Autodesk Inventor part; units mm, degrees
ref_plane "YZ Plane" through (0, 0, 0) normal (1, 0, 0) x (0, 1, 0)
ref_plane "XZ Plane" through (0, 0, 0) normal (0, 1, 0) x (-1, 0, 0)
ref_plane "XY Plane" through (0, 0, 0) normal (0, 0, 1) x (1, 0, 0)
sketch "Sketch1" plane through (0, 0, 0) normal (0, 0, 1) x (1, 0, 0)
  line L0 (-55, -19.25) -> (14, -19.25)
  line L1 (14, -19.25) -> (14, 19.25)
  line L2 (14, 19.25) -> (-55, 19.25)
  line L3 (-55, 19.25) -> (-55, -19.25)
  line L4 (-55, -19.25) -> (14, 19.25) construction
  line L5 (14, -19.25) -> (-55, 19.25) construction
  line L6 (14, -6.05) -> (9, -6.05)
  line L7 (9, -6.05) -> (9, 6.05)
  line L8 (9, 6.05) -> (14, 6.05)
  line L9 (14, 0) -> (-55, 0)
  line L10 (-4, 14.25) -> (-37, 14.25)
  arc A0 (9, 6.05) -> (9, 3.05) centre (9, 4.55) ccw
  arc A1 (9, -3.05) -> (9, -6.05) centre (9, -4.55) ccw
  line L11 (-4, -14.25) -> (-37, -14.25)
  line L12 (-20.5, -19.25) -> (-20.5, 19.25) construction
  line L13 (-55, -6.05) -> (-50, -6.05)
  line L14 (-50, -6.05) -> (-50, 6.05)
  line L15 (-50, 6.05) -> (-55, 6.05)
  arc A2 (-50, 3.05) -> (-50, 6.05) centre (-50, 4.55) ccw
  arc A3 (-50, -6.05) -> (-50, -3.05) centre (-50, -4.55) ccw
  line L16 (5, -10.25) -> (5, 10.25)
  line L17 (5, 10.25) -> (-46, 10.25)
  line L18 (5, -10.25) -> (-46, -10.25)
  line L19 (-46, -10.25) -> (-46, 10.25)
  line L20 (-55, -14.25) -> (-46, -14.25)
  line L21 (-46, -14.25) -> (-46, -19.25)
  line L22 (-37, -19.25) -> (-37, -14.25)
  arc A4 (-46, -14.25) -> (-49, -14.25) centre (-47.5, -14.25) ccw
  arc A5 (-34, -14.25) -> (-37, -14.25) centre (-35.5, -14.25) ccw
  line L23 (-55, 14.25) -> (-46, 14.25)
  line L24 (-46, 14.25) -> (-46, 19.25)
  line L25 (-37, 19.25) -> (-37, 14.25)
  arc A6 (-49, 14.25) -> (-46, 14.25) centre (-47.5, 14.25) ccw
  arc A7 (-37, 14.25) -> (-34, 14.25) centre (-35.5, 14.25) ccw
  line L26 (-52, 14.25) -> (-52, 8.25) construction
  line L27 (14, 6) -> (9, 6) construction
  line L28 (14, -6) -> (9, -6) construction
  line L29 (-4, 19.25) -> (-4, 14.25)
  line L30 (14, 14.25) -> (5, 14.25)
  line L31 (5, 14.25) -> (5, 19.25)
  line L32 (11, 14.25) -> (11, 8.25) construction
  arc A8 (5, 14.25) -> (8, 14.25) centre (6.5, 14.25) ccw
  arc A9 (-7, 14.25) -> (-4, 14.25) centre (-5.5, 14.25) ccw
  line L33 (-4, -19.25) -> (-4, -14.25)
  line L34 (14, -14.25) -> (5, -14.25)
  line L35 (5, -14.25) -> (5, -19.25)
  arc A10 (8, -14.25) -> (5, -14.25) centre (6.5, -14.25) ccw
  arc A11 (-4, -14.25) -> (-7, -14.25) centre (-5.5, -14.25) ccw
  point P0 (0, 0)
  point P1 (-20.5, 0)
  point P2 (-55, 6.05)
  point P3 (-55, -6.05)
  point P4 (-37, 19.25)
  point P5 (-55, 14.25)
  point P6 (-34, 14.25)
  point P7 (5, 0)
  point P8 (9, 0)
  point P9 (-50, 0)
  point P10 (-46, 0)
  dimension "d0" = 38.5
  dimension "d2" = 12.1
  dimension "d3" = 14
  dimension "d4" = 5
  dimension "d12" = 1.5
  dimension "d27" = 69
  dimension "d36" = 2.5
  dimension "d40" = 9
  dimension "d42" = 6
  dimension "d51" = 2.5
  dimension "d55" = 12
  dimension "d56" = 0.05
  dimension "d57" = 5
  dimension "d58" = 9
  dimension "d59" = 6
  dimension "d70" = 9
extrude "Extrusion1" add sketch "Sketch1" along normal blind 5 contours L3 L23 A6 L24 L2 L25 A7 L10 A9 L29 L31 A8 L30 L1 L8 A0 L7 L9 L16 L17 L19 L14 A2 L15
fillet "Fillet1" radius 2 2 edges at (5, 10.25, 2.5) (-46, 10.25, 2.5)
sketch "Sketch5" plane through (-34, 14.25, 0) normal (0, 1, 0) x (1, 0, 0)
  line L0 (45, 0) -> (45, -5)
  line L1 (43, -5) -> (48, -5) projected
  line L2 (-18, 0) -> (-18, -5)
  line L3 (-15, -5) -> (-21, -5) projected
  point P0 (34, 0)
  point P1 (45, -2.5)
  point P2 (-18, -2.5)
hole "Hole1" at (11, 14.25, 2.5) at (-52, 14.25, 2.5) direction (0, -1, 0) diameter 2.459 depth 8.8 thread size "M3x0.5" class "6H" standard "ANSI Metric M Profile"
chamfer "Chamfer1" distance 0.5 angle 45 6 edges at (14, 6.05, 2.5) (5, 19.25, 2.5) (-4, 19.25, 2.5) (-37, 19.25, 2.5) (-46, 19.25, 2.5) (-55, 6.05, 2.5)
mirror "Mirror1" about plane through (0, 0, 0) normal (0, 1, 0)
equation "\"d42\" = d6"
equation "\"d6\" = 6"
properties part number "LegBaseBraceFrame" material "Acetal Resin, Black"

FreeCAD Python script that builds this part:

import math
import FreeCAD as App
import Part
import Sketcher


def edges_at(feature, points):
    """Names of the edges that pass closest to the given points."""
    edges = feature.Shape.Edges
    near = lambda p: min(range(len(edges)), key=lambda i: edges[i].distToShape(Part.Vertex(*p))[0])
    return sorted({f"Edge{near(p) + 1}" for p in points})

doc = App.newDocument("Part")
body = doc.addObject("PartDesign::Body", "Body")

# Sketch on XY plane
sketch1 = doc.addObject("Sketcher::SketchObject", "Sketch")
body.addObject(sketch1)
sketch1.AttachmentSupport = (doc.XY_Plane, [""])
sketch1.MapMode = "FlatFace"
sketch1.addGeometry(Part.LineSegment(App.Vector(-55, 14.2, 0), App.Vector(-55, 6, 0)), False)
sketch1.addGeometry(Part.LineSegment(App.Vector(-55, 6, 0), App.Vector(-50, 6, 0)), False)
sketch1.addGeometry(Part.ArcOfCircle(Part.Circle(App.Vector(-50, 4.5, 0), App.Vector(0, 0, 1), 1.5), math.radians(-90), math.radians(90)), False)
sketch1.addGeometry(Part.LineSegment(App.Vector(-50, 3, 0), App.Vector(-50, 0, 0)), False)
sketch1.addGeometry(Part.LineSegment(App.Vector(-50, 0, 0), App.Vector(-46, 0, 0)), False)
sketch1.addGeometry(Part.LineSegment(App.Vector(-46, 0, 0), App.Vector(-46, 10.2, 0)), False)
sketch1.addGeometry(Part.LineSegment(App.Vector(-46, 10.2, 0), App.Vector(5, 10.2, 0)), False)
sketch1.addGeometry(Part.LineSegment(App.Vector(5, 10.2, 0), App.Vector(5, 0, 0)), False)
sketch1.addGeometry(Part.LineSegment(App.Vector(5, 0, 0), App.Vector(9, 0, 0)), False)
sketch1.addGeometry(Part.LineSegment(App.Vector(9, 0, 0), App.Vector(9, 3, 0)), False)
sketch1.addGeometry(Part.ArcOfCircle(Part.Circle(App.Vector(9, 4.5, 0), App.Vector(0, 0, 1), 1.5), math.radians(90), math.radians(270)), False)
sketch1.addGeometry(Part.LineSegment(App.Vector(9, 6, 0), App.Vector(14, 6, 0)), False)
sketch1.addGeometry(Part.LineSegment(App.Vector(14, 6, 0), App.Vector(14, 14.2, 0)), False)
sketch1.addGeometry(Part.LineSegment(App.Vector(14, 14.2, 0), App.Vector(8, 14.2, 0)), False)
sketch1.addGeometry(Part.ArcOfCircle(Part.Circle(App.Vector(6.5, 14.2, 0), App.Vector(0, 0, 1), 1.5), math.radians(180), math.radians(360)), False)
sketch1.addGeometry(Part.LineSegment(App.Vector(5, 14.2, 0), App.Vector(5, 19.2, 0)), False)
sketch1.addGeometry(Part.LineSegment(App.Vector(5, 19.2, 0), App.Vector(-4, 19.2, 0)), False)
sketch1.addGeometry(Part.LineSegment(App.Vector(-4, 19.2, 0), App.Vector(-4, 14.2, 0)), False)
sketch1.addGeometry(Part.ArcOfCircle(Part.Circle(App.Vector(-5.5, 14.2, 0), App.Vector(0, 0, 1), 1.5), math.radians(180), math.radians(360)), False)
sketch1.addGeometry(Part.LineSegment(App.Vector(-7, 14.2, 0), App.Vector(-34, 14.2, 0)), False)
sketch1.addGeometry(Part.ArcOfCircle(Part.Circle(App.Vector(-35.5, 14.2, 0), App.Vector(0, 0, 1), 1.5), math.radians(180), math.radians(360)), False)
sketch1.addGeometry(Part.LineSegment(App.Vector(-37, 14.2, 0), App.Vector(-37, 19.2, 0)), False)
sketch1.addGeometry(Part.LineSegment(App.Vector(-37, 19.2, 0), App.Vector(-46, 19.2, 0)), False)
sketch1.addGeometry(Part.LineSegment(App.Vector(-46, 19.2, 0), App.Vector(-46, 14.2, 0)), False)
sketch1.addGeometry(Part.ArcOfCircle(Part.Circle(App.Vector(-47.5, 14.2, 0), App.Vector(0, 0, 1), 1.5), math.radians(180), math.radians(360)), False)
sketch1.addGeometry(Part.LineSegment(App.Vector(-49, 14.2, 0), App.Vector(-55, 14.2, 0)), False)
sketch1.addConstraint(Sketcher.Constraint("Coincident", 0, 2, 1, 1))
sketch1.addConstraint(Sketcher.Constraint("Tangent", 1, 2, 2, 2))
sketch1.addConstraint(Sketcher.Constraint("Coincident", 2, 1, 3, 1))
sketch1.addConstraint(Sketcher.Constraint("Coincident", 3, 2, 4, 1))
sketch1.addConstraint(Sketcher.Constraint("Coincident", 4, 2, 5, 1))
sketch1.addConstraint(Sketcher.Constraint("Coincident", 5, 2, 6, 1))
sketch1.addConstraint(Sketcher.Constraint("Coincident", 6, 2, 7, 1))
sketch1.addConstraint(Sketcher.Constraint("Coincident", 7, 2, 8, 1))
sketch1.addConstraint(Sketcher.Constraint("Coincident", 8, 2, 9, 1))
sketch1.addConstraint(Sketcher.Constraint("Coincident", 9, 2, 10, 2))
sketch1.addConstraint(Sketcher.Constraint("Tangent", 10, 1, 11, 1))
sketch1.addConstraint(Sketcher.Constraint("Coincident", 11, 2, 12, 1))
sketch1.addConstraint(Sketcher.Constraint("Coincident", 12, 2, 13, 1))
sketch1.addConstraint(Sketcher.Constraint("Coincident", 13, 2, 14, 2))
sketch1.addConstraint(Sketcher.Constraint("Tangent", 14, 1, 15, 1))
sketch1.addConstraint(Sketcher.Constraint("Coincident", 15, 2, 16, 1))
sketch1.addConstraint(Sketcher.Constraint("Coincident", 16, 2, 17, 1))
sketch1.addConstraint(Sketcher.Constraint("Tangent", 17, 2, 18, 2))
sketch1.addConstraint(Sketcher.Constraint("Coincident", 18, 1, 19, 1))
sketch1.addConstraint(Sketcher.Constraint("Coincident", 19, 2, 20, 2))
sketch1.addConstraint(Sketcher.Constraint("Tangent", 20, 1, 21, 1))
sketch1.addConstraint(Sketcher.Constraint("Coincident", 21, 2, 22, 1))
sketch1.addConstraint(Sketcher.Constraint("Coincident", 22, 2, 23, 1))
sketch1.addConstraint(Sketcher.Constraint("Tangent", 23, 2, 24, 2))
sketch1.addConstraint(Sketcher.Constraint("Coincident", 24, 1, 25, 1))
sketch1.addConstraint(Sketcher.Constraint("Coincident", 25, 2, 0, 1))
sketch1.addConstraint(Sketcher.Constraint("Vertical", 0))
sketch1.addConstraint(Sketcher.Constraint("Horizontal", 1))
sketch1.addConstraint(Sketcher.Constraint("Vertical", 3))
sketch1.addConstraint(Sketcher.Constraint("Horizontal", 4))
sketch1.addConstraint(Sketcher.Constraint("Vertical", 5))
sketch1.addConstraint(Sketcher.Constraint("Horizontal", 6))
sketch1.addConstraint(Sketcher.Constraint("Vertical", 7))
sketch1.addConstraint(Sketcher.Constraint("Horizontal", 8))
sketch1.addConstraint(Sketcher.Constraint("Vertical", 9))
sketch1.addConstraint(Sketcher.Constraint("Horizontal", 11))
sketch1.addConstraint(Sketcher.Constraint("Vertical", 12))
sketch1.addConstraint(Sketcher.Constraint("Horizontal", 13))
sketch1.addConstraint(Sketcher.Constraint("Vertical", 15))
sketch1.addConstraint(Sketcher.Constraint("Horizontal", 16))
sketch1.addConstraint(Sketcher.Constraint("Vertical", 17))
sketch1.addConstraint(Sketcher.Constraint("Horizontal", 19))
sketch1.addConstraint(Sketcher.Constraint("Vertical", 21))
sketch1.addConstraint(Sketcher.Constraint("Horizontal", 22))
sketch1.addConstraint(Sketcher.Constraint("Vertical", 23))
sketch1.addConstraint(Sketcher.Constraint("Horizontal", 25))
sketch1.addConstraint(Sketcher.Constraint("Equal", 2, 10))
sketch1.addConstraint(Sketcher.Constraint("Equal", 10, 14))
sketch1.addConstraint(Sketcher.Constraint("Equal", 14, 18))
sketch1.addConstraint(Sketcher.Constraint("Equal", 18, 20))
sketch1.addConstraint(Sketcher.Constraint("Equal", 20, 24))
sketch1.addConstraint(Sketcher.Constraint("PointOnObject", 3, 2, -1))
sketch1.addConstraint(Sketcher.Constraint("PointOnObject", 7, 2, -1))
sketch1.addConstraint(Sketcher.Constraint("Horizontal", 2, 3, 10, 3))
sketch1.addConstraint(Sketcher.Constraint("Horizontal", 14, 3, 18, 3))
sketch1.addConstraint(Sketcher.Constraint("Horizontal", 18, 3, 20, 3))
sketch1.addConstraint(Sketcher.Constraint("Horizontal", 20, 3, 24, 3))
sketch1.addConstraint(Sketcher.Constraint("Horizontal", 24, 3, 12, 2))
sketch1.addConstraint(Sketcher.Constraint("Horizontal", 17, 2, 18, 1))
sketch1.addConstraint(Sketcher.Constraint("Horizontal", 16, 2, 21, 2))
sketch1.addConstraint(Sketcher.Constraint("Horizontal", 23, 2, 24, 1))
sketch1.addConstraint(Sketcher.Constraint("Vertical", 1, 2, 2, 1))
sketch1.addConstraint(Sketcher.Constraint("Vertical", 10, 3, 8, 2))
sketch1.addConstraint(Sketcher.Constraint("Vertical", 7, 2, 14, 1))
sketch1.addConstraint(Sketcher.Constraint("Vertical", 5, 2, 22, 2))
sketch1.addConstraint(Sketcher.Constraint("Equal", 4, 8))
sketch1.addConstraint(Sketcher.Constraint("Equal", 1, 11))
sketch1.addConstraint(Sketcher.Constraint("Equal", 16, 22))
sketch1.addConstraint(Sketcher.Constraint("Equal", 11, 15))
sketch1.addConstraint(Sketcher.Constraint("Radius", 2, 1.5))
sketch1.addConstraint(Sketcher.Constraint("DistanceX", 1, 1, 1, 2, 5.0))
sketch1.addConstraint(Sketcher.Constraint("DistanceX", 13, 2, 13, 1, 6.0))
sketch1.addConstraint(Sketcher.Constraint("DistanceX", 16, 2, 16, 1, 9.0))
sketch1.addConstraint(Sketcher.Constraint("DistanceX", -1, 1, 10, 3, 9.0))
sketch1.addConstraint(Sketcher.Constraint("DistanceY", 6, 2, 15, 2, 9.0))
sketch1.addConstraint(Sketcher.Constraint("DistanceX", 6, 1, 6, 2, 51.0))
sketch1.addConstraint(Sketcher.Constraint("DistanceY", 0, 2, 0, 1, 8.2))
sketch1.addConstraint(Sketcher.Constraint("DistanceY", 3, 2, 3, 1, 3.05))
pad1 = doc.addObject("PartDesign::Pad", "Pad")
body.addObject(pad1)
pad1.Profile = sketch1
pad1.Length = 5
doc.recompute()

fillet = doc.addObject("PartDesign::Fillet", "Fillet")
body.addObject(fillet)
fillet.Base = (pad1, edges_at(pad1, [(5, 10.25, 2.5), (-46, 10.25, 2.5)]))
fillet.Radius = 2

# Sketch on XZ plane
sketch2 = doc.addObject("Sketcher::SketchObject", "Sketch001")
body.addObject(sketch2)
sketch2.AttachmentSupport = (doc.XZ_Plane, [""])
sketch2.MapMode = "FlatFace"
sketch2.AttachmentOffset = App.Placement(App.Vector(0, 0, -14.25), App.Rotation())
sketch2.addGeometry(Part.Circle(App.Vector(11, 2.5, 0), App.Vector(0, 0, 1), 1.2), False)
sketch2.addGeometry(Part.Circle(App.Vector(-52, 2.5, 0), App.Vector(0, 0, 1), 1.2), False)
sketch2.addConstraint(Sketcher.Constraint("Equal", 0, 1))
sketch2.addConstraint(Sketcher.Constraint("Horizontal", 0, 3, 1, 3))
sketch2.addConstraint(Sketcher.Constraint("Diameter", 0, 2.459))
sketch2.addConstraint(Sketcher.Constraint("DistanceX", -1, 1, 0, 3, 11.0))
sketch2.addConstraint(Sketcher.Constraint("DistanceX", 1, 3, -1, 1, 52.0))
sketch2.addConstraint(Sketcher.Constraint("DistanceY", -1, 1, 0, 3, 2.5))
doc.recompute()
hole = doc.addObject("PartDesign::Hole", "Hole")
body.addObject(hole)
hole.Profile = sketch2
hole.ThreadType = "None"
hole.Diameter = 2.459
hole.DepthType = "Dimension"
hole.Depth = 8.8
hole.DrillPoint = "Flat"
hole.Reversed = True
doc.recompute()

chamfer = doc.addObject("PartDesign::Chamfer", "Chamfer")
body.addObject(chamfer)
chamfer.Base = (hole, edges_at(hole, [
    (14, 6.05, 2.5),
    (5, 19.25, 2.5),
    (-4, 19.25, 2.5),
    (-37, 19.25, 2.5),
    (-46, 19.25, 2.5),
    (-55, 6.05, 2.5),
]))
chamfer.Size = 0.5
doc.recompute()

mirrored = doc.addObject("PartDesign::Mirrored", "Mirrored")
body.addObject(mirrored)
mirrored.TransformMode = "Transform body"
mirrored.MirrorPlane = (doc.XZ_Plane, [""])
body.Tip = mirrored

doc.recompute()
